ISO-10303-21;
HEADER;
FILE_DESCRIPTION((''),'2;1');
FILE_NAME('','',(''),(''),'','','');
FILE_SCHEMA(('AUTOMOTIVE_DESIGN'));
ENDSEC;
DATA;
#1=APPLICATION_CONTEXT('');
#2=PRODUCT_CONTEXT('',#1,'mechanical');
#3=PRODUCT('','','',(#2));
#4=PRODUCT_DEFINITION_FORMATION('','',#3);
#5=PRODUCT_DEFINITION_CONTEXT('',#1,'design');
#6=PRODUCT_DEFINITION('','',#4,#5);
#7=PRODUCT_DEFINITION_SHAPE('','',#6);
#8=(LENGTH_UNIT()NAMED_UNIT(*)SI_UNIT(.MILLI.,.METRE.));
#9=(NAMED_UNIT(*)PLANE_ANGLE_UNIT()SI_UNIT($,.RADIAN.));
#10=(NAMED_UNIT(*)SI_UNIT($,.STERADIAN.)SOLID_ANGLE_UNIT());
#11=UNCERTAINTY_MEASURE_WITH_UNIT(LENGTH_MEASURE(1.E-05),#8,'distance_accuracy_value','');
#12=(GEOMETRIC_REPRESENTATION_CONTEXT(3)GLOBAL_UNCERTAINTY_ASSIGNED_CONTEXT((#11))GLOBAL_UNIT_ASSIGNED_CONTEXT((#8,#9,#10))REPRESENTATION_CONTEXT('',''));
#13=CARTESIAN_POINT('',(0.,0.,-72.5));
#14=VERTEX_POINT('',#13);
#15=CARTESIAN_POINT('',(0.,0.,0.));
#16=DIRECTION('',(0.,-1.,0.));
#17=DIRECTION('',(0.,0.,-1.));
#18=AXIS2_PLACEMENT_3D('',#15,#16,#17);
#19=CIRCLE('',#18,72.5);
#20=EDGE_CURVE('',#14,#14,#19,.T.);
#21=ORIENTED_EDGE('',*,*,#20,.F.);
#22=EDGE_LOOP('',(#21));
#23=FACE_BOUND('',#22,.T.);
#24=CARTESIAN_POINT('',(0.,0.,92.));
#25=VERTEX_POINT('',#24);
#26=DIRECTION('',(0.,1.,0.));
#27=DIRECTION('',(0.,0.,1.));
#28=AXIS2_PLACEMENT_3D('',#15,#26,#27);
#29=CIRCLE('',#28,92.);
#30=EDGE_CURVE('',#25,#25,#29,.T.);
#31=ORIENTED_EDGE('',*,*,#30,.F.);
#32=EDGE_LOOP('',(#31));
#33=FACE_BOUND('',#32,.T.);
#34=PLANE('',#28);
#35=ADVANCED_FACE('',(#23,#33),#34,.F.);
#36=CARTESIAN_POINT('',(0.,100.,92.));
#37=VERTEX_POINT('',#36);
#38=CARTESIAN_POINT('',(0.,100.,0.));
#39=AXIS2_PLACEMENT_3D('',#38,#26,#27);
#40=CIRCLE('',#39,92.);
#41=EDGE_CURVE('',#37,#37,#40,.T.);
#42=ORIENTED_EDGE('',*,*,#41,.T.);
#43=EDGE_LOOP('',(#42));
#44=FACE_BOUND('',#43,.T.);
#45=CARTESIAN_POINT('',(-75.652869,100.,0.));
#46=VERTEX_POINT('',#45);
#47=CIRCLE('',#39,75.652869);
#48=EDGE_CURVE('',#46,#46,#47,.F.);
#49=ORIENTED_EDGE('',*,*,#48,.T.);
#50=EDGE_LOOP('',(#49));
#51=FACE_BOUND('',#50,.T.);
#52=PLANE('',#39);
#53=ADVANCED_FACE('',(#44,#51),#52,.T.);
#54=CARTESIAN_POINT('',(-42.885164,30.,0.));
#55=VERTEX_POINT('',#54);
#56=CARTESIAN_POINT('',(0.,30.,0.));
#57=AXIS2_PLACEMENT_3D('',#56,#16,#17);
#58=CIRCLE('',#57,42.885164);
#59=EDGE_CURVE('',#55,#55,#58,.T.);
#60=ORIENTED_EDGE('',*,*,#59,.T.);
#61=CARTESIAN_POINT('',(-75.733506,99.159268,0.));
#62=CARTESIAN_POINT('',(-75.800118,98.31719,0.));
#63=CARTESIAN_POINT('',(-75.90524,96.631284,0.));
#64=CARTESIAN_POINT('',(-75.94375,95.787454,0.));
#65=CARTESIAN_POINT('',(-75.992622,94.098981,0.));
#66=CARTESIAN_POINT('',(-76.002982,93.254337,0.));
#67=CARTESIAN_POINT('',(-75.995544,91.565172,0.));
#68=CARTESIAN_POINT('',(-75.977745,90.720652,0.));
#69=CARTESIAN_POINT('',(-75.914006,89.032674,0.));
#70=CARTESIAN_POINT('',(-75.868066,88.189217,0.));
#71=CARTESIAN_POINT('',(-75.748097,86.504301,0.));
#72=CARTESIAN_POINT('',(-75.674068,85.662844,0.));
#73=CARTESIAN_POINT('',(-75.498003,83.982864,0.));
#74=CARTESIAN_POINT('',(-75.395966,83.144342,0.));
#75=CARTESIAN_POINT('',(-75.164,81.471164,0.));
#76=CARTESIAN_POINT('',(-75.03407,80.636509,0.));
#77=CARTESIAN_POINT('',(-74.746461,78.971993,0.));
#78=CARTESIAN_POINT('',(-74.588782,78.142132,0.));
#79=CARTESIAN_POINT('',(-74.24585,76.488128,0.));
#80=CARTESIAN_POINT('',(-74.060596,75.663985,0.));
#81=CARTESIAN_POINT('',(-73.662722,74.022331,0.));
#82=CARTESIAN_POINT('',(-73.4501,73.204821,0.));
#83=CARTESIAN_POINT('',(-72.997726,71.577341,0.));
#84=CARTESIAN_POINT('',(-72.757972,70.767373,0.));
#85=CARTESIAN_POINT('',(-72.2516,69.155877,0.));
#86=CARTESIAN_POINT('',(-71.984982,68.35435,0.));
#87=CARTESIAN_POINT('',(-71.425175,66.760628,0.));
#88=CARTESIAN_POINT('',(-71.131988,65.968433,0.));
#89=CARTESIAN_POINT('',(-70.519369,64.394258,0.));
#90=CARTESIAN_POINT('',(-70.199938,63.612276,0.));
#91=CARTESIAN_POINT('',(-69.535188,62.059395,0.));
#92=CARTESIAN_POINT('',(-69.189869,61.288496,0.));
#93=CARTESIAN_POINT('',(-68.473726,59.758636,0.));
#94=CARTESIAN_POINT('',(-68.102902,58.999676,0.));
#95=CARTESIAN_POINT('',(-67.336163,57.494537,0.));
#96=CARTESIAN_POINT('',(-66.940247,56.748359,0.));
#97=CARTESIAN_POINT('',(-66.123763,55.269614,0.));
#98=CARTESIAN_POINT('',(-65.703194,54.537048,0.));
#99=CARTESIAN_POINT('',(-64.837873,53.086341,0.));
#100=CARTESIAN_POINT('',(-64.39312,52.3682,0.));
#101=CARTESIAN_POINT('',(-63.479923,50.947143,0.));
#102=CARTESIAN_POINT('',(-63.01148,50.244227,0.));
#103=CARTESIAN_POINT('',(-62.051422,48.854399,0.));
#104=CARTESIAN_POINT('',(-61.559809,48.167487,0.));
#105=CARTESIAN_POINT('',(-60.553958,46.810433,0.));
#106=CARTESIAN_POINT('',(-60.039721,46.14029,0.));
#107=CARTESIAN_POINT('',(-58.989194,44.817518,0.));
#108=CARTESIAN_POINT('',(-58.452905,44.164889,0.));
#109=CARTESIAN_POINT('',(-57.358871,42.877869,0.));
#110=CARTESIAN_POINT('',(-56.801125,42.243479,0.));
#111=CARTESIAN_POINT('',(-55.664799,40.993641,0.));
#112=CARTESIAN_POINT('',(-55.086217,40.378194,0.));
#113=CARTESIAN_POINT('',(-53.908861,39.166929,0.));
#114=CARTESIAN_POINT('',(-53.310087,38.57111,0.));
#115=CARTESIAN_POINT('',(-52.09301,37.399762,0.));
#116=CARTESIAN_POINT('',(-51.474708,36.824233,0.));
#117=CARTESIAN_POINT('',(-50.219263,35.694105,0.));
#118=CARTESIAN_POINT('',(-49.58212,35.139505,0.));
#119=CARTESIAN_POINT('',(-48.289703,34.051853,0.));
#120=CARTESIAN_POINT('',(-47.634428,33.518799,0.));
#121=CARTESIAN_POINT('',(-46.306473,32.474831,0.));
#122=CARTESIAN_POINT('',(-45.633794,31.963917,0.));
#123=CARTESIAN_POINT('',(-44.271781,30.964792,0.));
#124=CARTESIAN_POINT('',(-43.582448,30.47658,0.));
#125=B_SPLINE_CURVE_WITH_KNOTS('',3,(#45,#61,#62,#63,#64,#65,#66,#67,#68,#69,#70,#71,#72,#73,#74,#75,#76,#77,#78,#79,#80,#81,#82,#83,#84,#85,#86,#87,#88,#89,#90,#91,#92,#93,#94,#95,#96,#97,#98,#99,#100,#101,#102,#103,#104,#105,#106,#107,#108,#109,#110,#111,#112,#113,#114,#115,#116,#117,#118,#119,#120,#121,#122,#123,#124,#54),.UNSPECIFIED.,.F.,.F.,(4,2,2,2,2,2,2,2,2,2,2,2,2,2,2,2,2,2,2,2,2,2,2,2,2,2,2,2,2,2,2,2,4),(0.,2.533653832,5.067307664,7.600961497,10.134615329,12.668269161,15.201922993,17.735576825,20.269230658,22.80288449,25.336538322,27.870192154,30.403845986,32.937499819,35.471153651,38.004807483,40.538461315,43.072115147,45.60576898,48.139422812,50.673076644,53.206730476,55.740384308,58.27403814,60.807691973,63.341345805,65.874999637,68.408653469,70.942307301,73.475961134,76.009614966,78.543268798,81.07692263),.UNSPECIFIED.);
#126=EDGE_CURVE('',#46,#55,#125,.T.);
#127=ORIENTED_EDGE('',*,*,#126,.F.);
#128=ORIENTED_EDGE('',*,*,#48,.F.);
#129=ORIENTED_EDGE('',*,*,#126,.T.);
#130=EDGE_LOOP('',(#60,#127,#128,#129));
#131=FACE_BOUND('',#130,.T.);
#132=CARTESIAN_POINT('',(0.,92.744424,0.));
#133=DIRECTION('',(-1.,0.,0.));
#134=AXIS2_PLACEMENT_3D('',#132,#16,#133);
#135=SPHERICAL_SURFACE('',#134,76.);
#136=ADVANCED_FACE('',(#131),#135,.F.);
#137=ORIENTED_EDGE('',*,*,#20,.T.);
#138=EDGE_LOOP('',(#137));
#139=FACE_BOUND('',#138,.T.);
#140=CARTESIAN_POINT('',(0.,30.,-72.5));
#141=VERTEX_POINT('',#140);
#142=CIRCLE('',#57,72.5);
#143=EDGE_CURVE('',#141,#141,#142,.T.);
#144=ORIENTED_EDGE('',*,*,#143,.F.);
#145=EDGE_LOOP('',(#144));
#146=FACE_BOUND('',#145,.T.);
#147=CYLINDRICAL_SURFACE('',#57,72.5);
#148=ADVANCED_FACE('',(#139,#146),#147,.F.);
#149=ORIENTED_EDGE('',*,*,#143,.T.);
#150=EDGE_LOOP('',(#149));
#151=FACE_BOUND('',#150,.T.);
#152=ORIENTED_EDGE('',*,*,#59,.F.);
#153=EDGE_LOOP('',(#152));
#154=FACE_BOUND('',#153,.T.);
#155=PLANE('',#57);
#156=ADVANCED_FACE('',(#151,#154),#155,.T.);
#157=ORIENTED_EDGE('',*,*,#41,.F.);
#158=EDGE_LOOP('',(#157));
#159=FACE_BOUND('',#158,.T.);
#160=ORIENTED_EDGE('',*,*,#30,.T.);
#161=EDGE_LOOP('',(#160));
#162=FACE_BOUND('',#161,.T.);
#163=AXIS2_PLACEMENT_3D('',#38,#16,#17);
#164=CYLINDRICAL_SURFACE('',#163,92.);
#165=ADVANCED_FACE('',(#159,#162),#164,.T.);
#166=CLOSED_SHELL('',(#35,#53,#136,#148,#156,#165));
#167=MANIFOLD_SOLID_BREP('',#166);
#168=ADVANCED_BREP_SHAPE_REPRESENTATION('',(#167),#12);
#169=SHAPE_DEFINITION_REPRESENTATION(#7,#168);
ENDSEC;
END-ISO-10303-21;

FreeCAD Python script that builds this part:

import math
import FreeCAD as App
import Part
import Sketcher
Q = App.Units.Quantity

doc = App.newDocument("Part")
params = doc.addObject("Spreadsheet::Sheet", "Params")
for row, (alias, value) in enumerate([
    ("sketch1_diameter", "184 mm"),
    ("pad1_length", "100 mm"),
    ("sketch2_radius", "76 mm"),
    ("groove_angle", "360 deg"),
    ("sketch3_diameter", "145 mm"),
    ("pocket1_length", "30 mm"),
], start=1):
    params.set(f"A{row}", alias)
    params.set(f"B{row}", "=" + value)
    params.setAlias(f"B{row}", alias)

body = doc.addObject("PartDesign::Body", "Body")

sketch1 = doc.addObject("Sketcher::SketchObject", "Sketch")
body.addObject(sketch1)
sketch1.AttachmentSupport = (doc.XZ_Plane, [""])
sketch1.MapMode = "FlatFace"
sketch1.addGeometry(Part.Circle(App.Vector(0, 0, 0), App.Vector(0, 0, 1), 92), False)
sketch1.addConstraint([
    Sketcher.Constraint("Coincident", 0, 3, -1, 1),
    Sketcher.Constraint("Diameter", 0, Q("184 mm")),
])
sketch1.setExpression("Constraints[1]", "Params.sketch1_diameter")
pad1 = doc.addObject("PartDesign::Pad", "Pad")
body.addObject(pad1)
pad1.Profile = sketch1
pad1.setExpression("Length", "Params.pad1_length")
pad1.Reversed = True

sketch2 = doc.addObject("Sketcher::SketchObject", "Sketch001")
body.addObject(sketch2)
sketch2.AttachmentSupport = (doc.XY_Plane, [""])
sketch2.MapMode = "FlatFace"
sketch2.addGeometry([
    Part.LineSegment(App.Vector(0, 17, 0), App.Vector(0, 169, 0)),
    Part.ArcOfCircle(Part.Circle(App.Vector(0, 93, 0), App.Vector(0, 0, 1), 76), math.radians(90), math.radians(270)),
], False)
sketch2.addConstraint([
    Sketcher.Constraint("Coincident", 0, 1, 1, 2),
    Sketcher.Constraint("Coincident", 1, 1, 0, 2),
    Sketcher.Constraint("Vertical", 0),
    Sketcher.Constraint("PointOnObject", 1, 3, -2),
    Sketcher.Constraint("PointOnObject", 0, 1, -2),
    Sketcher.Constraint("Radius", 1, Q("76 mm")),
    Sketcher.Constraint("DistanceY", -1, 1, 1, 3, Q("92.744424 mm")),
])
sketch2.setExpression("Constraints[5]", "Params.sketch2_radius")
groove = doc.addObject("PartDesign::Groove", "Groove")
body.addObject(groove)
groove.Profile = sketch2
groove.ReferenceAxis = (sketch2, ["V_Axis"])
groove.setExpression("Angle", "Params.groove_angle")

sketch3 = doc.addObject("Sketcher::SketchObject", "Sketch002")
body.addObject(sketch3)
sketch3.AttachmentSupport = (doc.XZ_Plane, [""])
sketch3.MapMode = "FlatFace"
sketch3.addGeometry(Part.Circle(App.Vector(0, 0, 0), App.Vector(0, 0, 1), 72), False)
sketch3.addConstraint([
    Sketcher.Constraint("Coincident", 0, 3, -1, 1),
    Sketcher.Constraint("Diameter", 0, Q("145 mm")),
])
sketch3.setExpression("Constraints[1]", "Params.sketch3_diameter")
pocket1 = doc.addObject("PartDesign::Pocket", "Pocket")
body.addObject(pocket1)
pocket1.Profile = sketch3
pocket1.setExpression("Length", "Params.pocket1_length")

doc.recompute()
